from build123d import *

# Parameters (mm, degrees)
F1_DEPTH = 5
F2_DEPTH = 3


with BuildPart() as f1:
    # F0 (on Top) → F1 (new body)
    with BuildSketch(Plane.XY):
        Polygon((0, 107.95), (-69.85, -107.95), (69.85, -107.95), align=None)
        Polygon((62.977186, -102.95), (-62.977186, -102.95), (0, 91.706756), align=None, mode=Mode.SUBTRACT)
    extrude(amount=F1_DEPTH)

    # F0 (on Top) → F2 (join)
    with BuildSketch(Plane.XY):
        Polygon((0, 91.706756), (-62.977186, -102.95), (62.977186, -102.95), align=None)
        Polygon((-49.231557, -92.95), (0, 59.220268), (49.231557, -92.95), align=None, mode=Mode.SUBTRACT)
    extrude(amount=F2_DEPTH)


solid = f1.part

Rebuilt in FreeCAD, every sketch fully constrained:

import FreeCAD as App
import Part
import Sketcher
Q = App.Units.Quantity

doc = App.newDocument("Part")
body = doc.addObject("PartDesign::Body", "Body")

# Sketch on XY plane
sketch1 = body.newObject("Sketcher::SketchObject", "Sketch")
sketch1.AttachmentSupport = (doc.getObject("XY_Plane"), [""])
sketch1.MapMode = "FlatFace"
sketch1.addGeometry([
    Part.LineSegment(App.Vector(0, 107.95, 0), App.Vector(-69.85, -107.95, 0)),  # 0
    Part.LineSegment(App.Vector(-69.85, -107.95, 0), App.Vector(69.85, -107.95, 0)),  # 1
    Part.LineSegment(App.Vector(69.85, -107.95, 0), App.Vector(0, 107.95, 0)),  # 2
    Part.LineSegment(App.Vector(0, 91.706756, 0), App.Vector(62.977186, -102.95, 0)),  # 3
    Part.LineSegment(App.Vector(62.977186, -102.95, 0), App.Vector(-62.977186, -102.95, 0)),  # 4
    Part.LineSegment(App.Vector(-62.977186, -102.95, 0), App.Vector(0, 91.706756, 0)),  # 5
], False)
sketch1.addConstraint([
    Sketcher.Constraint("Coincident", 0, 2, 1, 1),
    Sketcher.Constraint("Coincident", 1, 2, 2, 1),
    Sketcher.Constraint("Coincident", 2, 2, 0, 1),
    Sketcher.Constraint("Coincident", 3, 2, 4, 1),
    Sketcher.Constraint("Coincident", 4, 2, 5, 1),
    Sketcher.Constraint("Coincident", 5, 2, 3, 1),
    Sketcher.Constraint("Horizontal", 1),
    Sketcher.Constraint("Horizontal", 4),
    Sketcher.Constraint("PointOnObject", 2, 2, -2),
    Sketcher.Constraint("PointOnObject", 5, 2, -2),
    Sketcher.Constraint("Parallel", 2, 3),
    Sketcher.Constraint("Parallel", 0, 5),
    Sketcher.Constraint("Equal", 0, 2),
    Sketcher.Constraint("DistanceX", 1, 1, 1, 2, Q("139.7 mm")),
    Sketcher.Constraint("DistanceY", 1, 2, 3, 2, Q("5 mm")),
    Sketcher.Constraint("DistanceY", 0, 2, 2, 2, Q("215.9 mm")),
    Sketcher.Constraint("DistanceY", 0, 2, -1, 1, Q("107.95 mm")),
    Sketcher.Constraint("Distance", 3, Q("204.590759 mm")),
])
pad1 = body.newObject("PartDesign::Pad", "Pad")
pad1.Profile = sketch1
pad1.Length = 5

# Sketch on XY plane
sketch2 = body.newObject("Sketcher::SketchObject", "Sketch001")
sketch2.AttachmentSupport = (doc.getObject("XY_Plane"), [""])
sketch2.MapMode = "FlatFace"
sketch2.addGeometry([
    Part.LineSegment(App.Vector(0, 91.706756, 0), App.Vector(-62.977186, -102.95, 0)),  # 0
    Part.LineSegment(App.Vector(-62.977186, -102.95, 0), App.Vector(62.977186, -102.95, 0)),  # 1
    Part.LineSegment(App.Vector(62.977186, -102.95, 0), App.Vector(0, 91.706756, 0)),  # 2
    Part.LineSegment(App.Vector(49.231557, -92.95, 0), App.Vector(-49.231557, -92.95, 0)),  # 3
    Part.LineSegment(App.Vector(-49.231557, -92.95, 0), App.Vector(0, 59.220268, 0)),  # 4
    Part.LineSegment(App.Vector(0, 59.220268, 0), App.Vector(49.231557, -92.95, 0)),  # 5
], False)
sketch2.addConstraint([
    Sketcher.Constraint("Coincident", 0, 2, 1, 1),
    Sketcher.Constraint("Coincident", 1, 2, 2, 1),
    Sketcher.Constraint("Coincident", 2, 2, 0, 1),
    Sketcher.Constraint("Coincident", 3, 2, 4, 1),
    Sketcher.Constraint("Coincident", 4, 2, 5, 1),
    Sketcher.Constraint("Coincident", 5, 2, 3, 1),
    Sketcher.Constraint("Horizontal", 1),
    Sketcher.Constraint("Horizontal", 3),
    Sketcher.Constraint("PointOnObject", 2, 2, -2),
    Sketcher.Constraint("PointOnObject", 4, 2, -2),
    Sketcher.Constraint("Parallel", 0, 4),
    Sketcher.Constraint("Parallel", 2, 5),
    Sketcher.Constraint("Equal", 0, 2),
    Sketcher.Constraint("DistanceY", 0, 2, 3, 2, Q("10 mm")),
    Sketcher.Constraint("DistanceY", 0, 2, -1, 1, Q("102.95 mm")),
    Sketcher.Constraint("Distance", 0, Q("204.590759 mm")),
    Sketcher.Constraint("Distance", 4, Q("159.936039 mm")),
    Sketcher.Constraint("DistanceX", 1, 1, 1, 2, Q("125.954372 mm")),
])
pad2 = body.newObject("PartDesign::Pad", "Pad001")
pad2.Profile = sketch2
pad2.Length = 3

doc.recompute()
